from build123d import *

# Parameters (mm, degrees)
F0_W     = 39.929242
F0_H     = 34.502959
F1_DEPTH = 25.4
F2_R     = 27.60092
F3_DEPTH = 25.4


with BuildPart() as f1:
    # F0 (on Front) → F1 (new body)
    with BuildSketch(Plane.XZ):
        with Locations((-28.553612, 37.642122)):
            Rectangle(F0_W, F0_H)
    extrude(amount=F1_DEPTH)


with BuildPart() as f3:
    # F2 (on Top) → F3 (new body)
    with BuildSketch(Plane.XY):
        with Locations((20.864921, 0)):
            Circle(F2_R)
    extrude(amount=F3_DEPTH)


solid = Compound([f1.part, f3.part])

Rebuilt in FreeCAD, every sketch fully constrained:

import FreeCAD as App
import Part
import Sketcher
from FreeCAD import Vector
Q = App.Units.Quantity

doc = App.newDocument("Part")
body = doc.addObject("PartDesign::Body", "Body")

sketch1 = body.newObject("Sketcher::SketchObject", "Sketch")
sketch1.AttachmentSupport = (doc.getObject("XZ_Plane"), [""])
sketch1.MapMode = "FlatFace"
sketch1.addGeometry(Part.LineSegment(Vector(-49, 55, 0), Vector(-49, 20, 0)), False)
sketch1.addGeometry(Part.LineSegment(Vector(-49, 20, 0), Vector(-9, 20, 0)), False)
sketch1.addGeometry(Part.LineSegment(Vector(-9, 20, 0), Vector(-9, 55, 0)), False)
sketch1.addGeometry(Part.LineSegment(Vector(-9, 55, 0), Vector(-49, 55, 0)), False)
sketch1.addConstraint(Sketcher.Constraint("Coincident", 0, 2, 1, 1))
sketch1.addConstraint(Sketcher.Constraint("Coincident", 1, 2, 2, 1))
sketch1.addConstraint(Sketcher.Constraint("Coincident", 2, 2, 3, 1))
sketch1.addConstraint(Sketcher.Constraint("Coincident", 3, 2, 0, 1))
sketch1.addConstraint(Sketcher.Constraint("Vertical", 0))
sketch1.addConstraint(Sketcher.Constraint("Horizontal", 1))
sketch1.addConstraint(Sketcher.Constraint("Vertical", 2))
sketch1.addConstraint(Sketcher.Constraint("Horizontal", 3))
sketch1.addConstraint(Sketcher.Constraint("DistanceY", 0, 2, 0, 1, Q("34.502959 mm")))
sketch1.addConstraint(Sketcher.Constraint("DistanceY", -1, 1, 2, 2, Q("54.893602 mm")))
sketch1.addConstraint(Sketcher.Constraint("DistanceX", 1, 1, 1, 2, Q("39.929242 mm")))
sketch1.addConstraint(Sketcher.Constraint("DistanceX", 1, 2, -1, 1, Q("8.588991 mm")))
pad1 = body.newObject("PartDesign::Pad", "Pad")
pad1.Profile = sketch1
pad1.Length = Q("1 in")
body2 = doc.addObject("PartDesign::Body", "Body001")

sketch2 = body2.newObject("Sketcher::SketchObject", "Sketch001")
sketch2.AttachmentSupport = (doc.getObject("XY_Plane001"), [""])
sketch2.MapMode = "FlatFace"
sketch2.addGeometry(Part.Circle(Vector(21, 0, 0), Vector(0, 0, 1), 28), False)
sketch2.addConstraint(Sketcher.Constraint("PointOnObject", 0, 3, -1))
sketch2.addConstraint(Sketcher.Constraint("Diameter", 0, Q("55.20184 mm")))
sketch2.addConstraint(Sketcher.Constraint("DistanceX", -1, 1, 0, 3, Q("20.864921 mm")))
pad2 = body2.newObject("PartDesign::Pad", "Pad001")
pad2.Profile = sketch2
pad2.Length = Q("1 in")

doc.recompute()
